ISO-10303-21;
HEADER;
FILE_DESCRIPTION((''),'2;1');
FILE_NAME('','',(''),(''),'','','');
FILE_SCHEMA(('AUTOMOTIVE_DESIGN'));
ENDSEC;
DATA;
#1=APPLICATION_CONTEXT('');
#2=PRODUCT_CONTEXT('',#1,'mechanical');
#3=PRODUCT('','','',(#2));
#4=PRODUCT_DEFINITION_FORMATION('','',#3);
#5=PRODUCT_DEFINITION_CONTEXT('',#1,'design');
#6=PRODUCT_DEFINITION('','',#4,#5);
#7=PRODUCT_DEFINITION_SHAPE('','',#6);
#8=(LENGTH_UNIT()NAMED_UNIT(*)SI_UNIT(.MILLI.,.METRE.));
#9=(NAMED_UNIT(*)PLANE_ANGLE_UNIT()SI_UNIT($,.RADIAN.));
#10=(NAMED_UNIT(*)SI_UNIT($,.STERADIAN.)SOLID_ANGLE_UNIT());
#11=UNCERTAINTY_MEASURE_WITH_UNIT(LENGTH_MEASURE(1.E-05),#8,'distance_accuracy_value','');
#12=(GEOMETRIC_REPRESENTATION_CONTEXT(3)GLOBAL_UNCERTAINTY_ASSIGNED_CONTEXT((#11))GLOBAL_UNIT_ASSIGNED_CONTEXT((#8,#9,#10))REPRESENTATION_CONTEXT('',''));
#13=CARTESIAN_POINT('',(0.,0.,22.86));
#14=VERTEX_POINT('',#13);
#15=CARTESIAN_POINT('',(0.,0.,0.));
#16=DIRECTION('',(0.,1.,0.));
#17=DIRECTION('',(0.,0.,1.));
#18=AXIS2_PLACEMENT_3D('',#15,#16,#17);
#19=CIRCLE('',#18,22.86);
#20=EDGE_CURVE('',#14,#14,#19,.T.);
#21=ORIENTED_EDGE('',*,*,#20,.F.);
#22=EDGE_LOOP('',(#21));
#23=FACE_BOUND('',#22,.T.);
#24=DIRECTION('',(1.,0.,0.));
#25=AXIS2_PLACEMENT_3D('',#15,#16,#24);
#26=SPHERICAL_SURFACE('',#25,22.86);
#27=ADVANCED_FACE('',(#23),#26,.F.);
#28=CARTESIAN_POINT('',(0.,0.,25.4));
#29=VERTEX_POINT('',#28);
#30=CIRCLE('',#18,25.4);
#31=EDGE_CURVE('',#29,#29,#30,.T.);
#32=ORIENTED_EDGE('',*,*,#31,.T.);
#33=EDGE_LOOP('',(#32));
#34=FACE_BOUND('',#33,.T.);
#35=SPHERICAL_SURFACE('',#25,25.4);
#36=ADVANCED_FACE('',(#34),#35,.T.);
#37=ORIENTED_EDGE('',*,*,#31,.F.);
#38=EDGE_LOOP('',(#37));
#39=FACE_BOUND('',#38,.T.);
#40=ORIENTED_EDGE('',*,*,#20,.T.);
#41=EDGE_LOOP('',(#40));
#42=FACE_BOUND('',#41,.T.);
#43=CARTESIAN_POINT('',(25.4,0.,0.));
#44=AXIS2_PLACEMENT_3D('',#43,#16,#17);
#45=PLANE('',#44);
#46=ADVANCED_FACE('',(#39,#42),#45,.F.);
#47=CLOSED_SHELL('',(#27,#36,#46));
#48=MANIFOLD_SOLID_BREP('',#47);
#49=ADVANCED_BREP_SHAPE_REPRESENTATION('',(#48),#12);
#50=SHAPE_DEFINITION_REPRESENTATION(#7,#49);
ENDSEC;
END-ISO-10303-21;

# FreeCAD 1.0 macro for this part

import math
import FreeCAD as App
import Part
import Sketcher
Q = App.Units.Quantity

doc = App.newDocument("Part")
body = doc.addObject("PartDesign::Body", "Body")

sketch1 = body.newObject("Sketcher::SketchObject", "Sketch")
sketch1.AttachmentSupport = (doc.getObject("XY_Plane"), [""])
sketch1.MapMode = "FlatFace"
sketch1.addGeometry(Part.LineSegment(App.Vector(22.9, 0, 0), App.Vector(25.4, 0, 0)), False)
sketch1.addGeometry(Part.ArcOfCircle(Part.Circle(App.Vector(0, 0, 0), App.Vector(0, 0, 1), 25.4), math.radians(0), math.radians(90)), False)
sketch1.addGeometry(Part.LineSegment(App.Vector(0, 25.4, 0), App.Vector(0, 22.9, 0)), False)
sketch1.addGeometry(Part.ArcOfCircle(Part.Circle(App.Vector(0, 0, 0), App.Vector(0, 0, 1), 22.9), math.radians(0), math.radians(90)), False)
sketch1.addConstraint(Sketcher.Constraint("Coincident", 0, 2, 1, 1))
sketch1.addConstraint(Sketcher.Constraint("Coincident", 1, 2, 2, 1))
sketch1.addConstraint(Sketcher.Constraint("Coincident", 2, 2, 3, 2))
sketch1.addConstraint(Sketcher.Constraint("Coincident", 3, 1, 0, 1))
sketch1.addConstraint(Sketcher.Constraint("Horizontal", 0))
sketch1.addConstraint(Sketcher.Constraint("Vertical", 2))
sketch1.addConstraint(Sketcher.Constraint("Coincident", 1, 3, -1, 1))
sketch1.addConstraint(Sketcher.Constraint("Coincident", 3, 3, -1, 1))
sketch1.addConstraint(Sketcher.Constraint("PointOnObject", 0, 2, -1))
sketch1.addConstraint(Sketcher.Constraint("PointOnObject", 1, 2, -2))
sketch1.addConstraint(Sketcher.Constraint("Radius", 1, Q("1 in")))
sketch1.addConstraint(Sketcher.Constraint("Radius", 3, Q("0.9 in")))
revolution = body.newObject("PartDesign::Revolution", "Revolution")
revolution.Profile = sketch1
revolution.ReferenceAxis = (sketch1, ["V_Axis"])
revolution.Angle = 360

doc.recompute()
